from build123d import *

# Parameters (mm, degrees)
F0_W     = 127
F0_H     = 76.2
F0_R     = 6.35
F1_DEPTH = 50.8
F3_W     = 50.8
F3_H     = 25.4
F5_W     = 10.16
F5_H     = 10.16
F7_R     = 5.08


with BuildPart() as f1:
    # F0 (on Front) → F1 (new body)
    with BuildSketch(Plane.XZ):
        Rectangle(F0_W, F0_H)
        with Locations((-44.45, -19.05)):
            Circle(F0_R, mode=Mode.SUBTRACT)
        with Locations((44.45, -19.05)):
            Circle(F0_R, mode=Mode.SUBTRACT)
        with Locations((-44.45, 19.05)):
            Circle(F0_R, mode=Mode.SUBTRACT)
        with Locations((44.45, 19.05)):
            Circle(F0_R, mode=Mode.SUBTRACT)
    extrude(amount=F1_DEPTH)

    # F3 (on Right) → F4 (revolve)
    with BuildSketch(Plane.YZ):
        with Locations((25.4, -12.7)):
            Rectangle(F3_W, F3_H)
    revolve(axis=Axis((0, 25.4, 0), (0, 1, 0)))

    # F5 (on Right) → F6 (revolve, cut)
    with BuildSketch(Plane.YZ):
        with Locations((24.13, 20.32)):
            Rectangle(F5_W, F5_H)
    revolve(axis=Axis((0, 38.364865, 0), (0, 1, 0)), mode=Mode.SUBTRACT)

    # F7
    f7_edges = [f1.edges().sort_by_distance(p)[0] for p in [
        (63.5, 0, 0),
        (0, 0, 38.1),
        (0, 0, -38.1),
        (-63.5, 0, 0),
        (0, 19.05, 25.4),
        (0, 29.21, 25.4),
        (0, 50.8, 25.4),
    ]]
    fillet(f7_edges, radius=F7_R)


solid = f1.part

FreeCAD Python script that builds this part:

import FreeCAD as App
import Part
import Sketcher

V = App.Vector
Q = App.Units.Quantity


def edges_at(feature, points):
    """Names of the edges that pass closest to the given points."""
    edges = feature.Shape.Edges
    near = lambda p: min(range(len(edges)), key=lambda i: edges[i].distToShape(Part.Vertex(*p))[0])
    return sorted({f"Edge{near(p) + 1}" for p in points})


def add_polygon(sketch, points):
    """Adds a closed chain of lines whose ends are joined by coincident constraints."""
    first, n = sketch.GeometryCount, len(points)
    for a, b in zip(points, points[1:] + points[:1]):
        sketch.addGeometry(Part.LineSegment(App.Vector(*a, 0), App.Vector(*b, 0)), False)
    for i in range(n):
        sketch.addConstraint(Sketcher.Constraint("Coincident", first + i, 2, first + (i + 1) % n, 1))

doc = App.newDocument("Part")
body = doc.addObject("PartDesign::Body", "Body")

sketch1 = doc.addObject("Sketcher::SketchObject", "Sketch")
body.addObject(sketch1)
sketch1.AttachmentSupport = (doc.XZ_Plane, [""])
sketch1.MapMode = "FlatFace"
add_polygon(sketch1, [(-63.5, 38.1), (-63.5, -38.1), (63.5, -38.1), (63.5, 38.1)])
sketch1.addGeometry(Part.Circle(V(-44.45, -19.05, 0), V(0, 0, 1), 6.35), False)
sketch1.addGeometry(Part.Circle(V(44.45, -19.05, 0), V(0, 0, 1), 6.35), False)
sketch1.addGeometry(Part.Circle(V(-44.45, 19.05, 0), V(0, 0, 1), 6.35), False)
sketch1.addGeometry(Part.Circle(V(44.45, 19.05, 0), V(0, 0, 1), 6.35), False)
sketch1.addConstraint([
    Sketcher.Constraint("Vertical", 0),
    Sketcher.Constraint("Horizontal", 1),
    Sketcher.Constraint("Vertical", 2),
    Sketcher.Constraint("Horizontal", 3),
    Sketcher.Constraint("Equal", 4, 5),
    Sketcher.Constraint("Equal", 5, 6),
    Sketcher.Constraint("Equal", 6, 7),
    Sketcher.Constraint("Symmetric", 5, 3, 6, 3, -1, 1),
    Sketcher.Constraint("Symmetric", 4, 3, 7, 3, -1, 1),
    Sketcher.Constraint("Symmetric", 0, 2, 2, 2, -1, 1),
    Sketcher.Constraint("Symmetric", 4, 3, 5, 3, -2),
    Sketcher.Constraint("Diameter", 4, Q("0.5 in")),
    Sketcher.Constraint("DistanceX", 1, 1, 1, 2, Q("5 in")),
    Sketcher.Constraint("DistanceY", 0, 2, 0, 1, Q("3 in")),
    Sketcher.Constraint("DistanceX", 4, 3, 5, 3, Q("3.5 in")),
    Sketcher.Constraint("DistanceY", 4, 3, 6, 3, Q("1.5 in")),
])
pad1 = doc.addObject("PartDesign::Pad", "Pad")
body.addObject(pad1)
pad1.Profile = sketch1
pad1.Length = Q("2 in")

sketch2 = doc.addObject("Sketcher::SketchObject", "Sketch001")
body.addObject(sketch2)
sketch2.AttachmentSupport = (doc.YZ_Plane, [""])
sketch2.MapMode = "FlatFace"
add_polygon(sketch2, [(0, 0), (0, -25.4), (50.8, -25.4), (50.8, 0)])
sketch2.addConstraint([
    Sketcher.Constraint("Vertical", 0),
    Sketcher.Constraint("Horizontal", 1),
    Sketcher.Constraint("Vertical", 2),
    Sketcher.Constraint("Horizontal", 3),
    Sketcher.Constraint("Coincident", 3, 2, -1, 1),
    Sketcher.Constraint("DistanceX", 1, 1, 1, 2, Q("2 in")),
    Sketcher.Constraint("DistanceY", 0, 2, 0, 1, Q("1 in")),
])
revolution = doc.addObject("PartDesign::Revolution", "Revolution")
body.addObject(revolution)
revolution.Profile = sketch2
revolution.ReferenceAxis = (sketch2, ["H_Axis"])
revolution.Angle = 360

sketch3 = doc.addObject("Sketcher::SketchObject", "Sketch002")
body.addObject(sketch3)
sketch3.AttachmentSupport = (doc.YZ_Plane, [""])
sketch3.MapMode = "FlatFace"
add_polygon(sketch3, [(19.05, 25.4), (19.05, 15.24), (29.21, 15.24), (29.21, 25.4)])
sketch3.addConstraint([
    Sketcher.Constraint("Vertical", 0),
    Sketcher.Constraint("Horizontal", 1),
    Sketcher.Constraint("Vertical", 2),
    Sketcher.Constraint("Horizontal", 3),
    Sketcher.Constraint("Equal", 3, 0),
    Sketcher.Constraint("DistanceX", 1, 1, 1, 2, Q("0.4 in")),
    Sketcher.Constraint("DistanceY", -1, 1, 2, 2, Q("1 in")),
    Sketcher.Constraint("DistanceX", -1, 1, 0, 2, Q("0.75 in")),
])
groove = doc.addObject("PartDesign::Groove", "Groove")
body.addObject(groove)
groove.Profile = sketch3
groove.ReferenceAxis = (sketch3, ["H_Axis"])
groove.Angle = 360
doc.recompute()

fillet = doc.addObject("PartDesign::Fillet", "Fillet")
body.addObject(fillet)
fillet.Base = (groove, edges_at(groove, [
    (63.5, 0, 0),
    (0, 0, 38.1),
    (0, 0, -38.1),
    (-63.5, 0, 0),
    (0, 19.05, 25.4),
    (0, 29.21, 25.4),
    (0, 50.8, 25.4),
]))
fillet.Radius = Q("0.2 in")

doc.recompute()
